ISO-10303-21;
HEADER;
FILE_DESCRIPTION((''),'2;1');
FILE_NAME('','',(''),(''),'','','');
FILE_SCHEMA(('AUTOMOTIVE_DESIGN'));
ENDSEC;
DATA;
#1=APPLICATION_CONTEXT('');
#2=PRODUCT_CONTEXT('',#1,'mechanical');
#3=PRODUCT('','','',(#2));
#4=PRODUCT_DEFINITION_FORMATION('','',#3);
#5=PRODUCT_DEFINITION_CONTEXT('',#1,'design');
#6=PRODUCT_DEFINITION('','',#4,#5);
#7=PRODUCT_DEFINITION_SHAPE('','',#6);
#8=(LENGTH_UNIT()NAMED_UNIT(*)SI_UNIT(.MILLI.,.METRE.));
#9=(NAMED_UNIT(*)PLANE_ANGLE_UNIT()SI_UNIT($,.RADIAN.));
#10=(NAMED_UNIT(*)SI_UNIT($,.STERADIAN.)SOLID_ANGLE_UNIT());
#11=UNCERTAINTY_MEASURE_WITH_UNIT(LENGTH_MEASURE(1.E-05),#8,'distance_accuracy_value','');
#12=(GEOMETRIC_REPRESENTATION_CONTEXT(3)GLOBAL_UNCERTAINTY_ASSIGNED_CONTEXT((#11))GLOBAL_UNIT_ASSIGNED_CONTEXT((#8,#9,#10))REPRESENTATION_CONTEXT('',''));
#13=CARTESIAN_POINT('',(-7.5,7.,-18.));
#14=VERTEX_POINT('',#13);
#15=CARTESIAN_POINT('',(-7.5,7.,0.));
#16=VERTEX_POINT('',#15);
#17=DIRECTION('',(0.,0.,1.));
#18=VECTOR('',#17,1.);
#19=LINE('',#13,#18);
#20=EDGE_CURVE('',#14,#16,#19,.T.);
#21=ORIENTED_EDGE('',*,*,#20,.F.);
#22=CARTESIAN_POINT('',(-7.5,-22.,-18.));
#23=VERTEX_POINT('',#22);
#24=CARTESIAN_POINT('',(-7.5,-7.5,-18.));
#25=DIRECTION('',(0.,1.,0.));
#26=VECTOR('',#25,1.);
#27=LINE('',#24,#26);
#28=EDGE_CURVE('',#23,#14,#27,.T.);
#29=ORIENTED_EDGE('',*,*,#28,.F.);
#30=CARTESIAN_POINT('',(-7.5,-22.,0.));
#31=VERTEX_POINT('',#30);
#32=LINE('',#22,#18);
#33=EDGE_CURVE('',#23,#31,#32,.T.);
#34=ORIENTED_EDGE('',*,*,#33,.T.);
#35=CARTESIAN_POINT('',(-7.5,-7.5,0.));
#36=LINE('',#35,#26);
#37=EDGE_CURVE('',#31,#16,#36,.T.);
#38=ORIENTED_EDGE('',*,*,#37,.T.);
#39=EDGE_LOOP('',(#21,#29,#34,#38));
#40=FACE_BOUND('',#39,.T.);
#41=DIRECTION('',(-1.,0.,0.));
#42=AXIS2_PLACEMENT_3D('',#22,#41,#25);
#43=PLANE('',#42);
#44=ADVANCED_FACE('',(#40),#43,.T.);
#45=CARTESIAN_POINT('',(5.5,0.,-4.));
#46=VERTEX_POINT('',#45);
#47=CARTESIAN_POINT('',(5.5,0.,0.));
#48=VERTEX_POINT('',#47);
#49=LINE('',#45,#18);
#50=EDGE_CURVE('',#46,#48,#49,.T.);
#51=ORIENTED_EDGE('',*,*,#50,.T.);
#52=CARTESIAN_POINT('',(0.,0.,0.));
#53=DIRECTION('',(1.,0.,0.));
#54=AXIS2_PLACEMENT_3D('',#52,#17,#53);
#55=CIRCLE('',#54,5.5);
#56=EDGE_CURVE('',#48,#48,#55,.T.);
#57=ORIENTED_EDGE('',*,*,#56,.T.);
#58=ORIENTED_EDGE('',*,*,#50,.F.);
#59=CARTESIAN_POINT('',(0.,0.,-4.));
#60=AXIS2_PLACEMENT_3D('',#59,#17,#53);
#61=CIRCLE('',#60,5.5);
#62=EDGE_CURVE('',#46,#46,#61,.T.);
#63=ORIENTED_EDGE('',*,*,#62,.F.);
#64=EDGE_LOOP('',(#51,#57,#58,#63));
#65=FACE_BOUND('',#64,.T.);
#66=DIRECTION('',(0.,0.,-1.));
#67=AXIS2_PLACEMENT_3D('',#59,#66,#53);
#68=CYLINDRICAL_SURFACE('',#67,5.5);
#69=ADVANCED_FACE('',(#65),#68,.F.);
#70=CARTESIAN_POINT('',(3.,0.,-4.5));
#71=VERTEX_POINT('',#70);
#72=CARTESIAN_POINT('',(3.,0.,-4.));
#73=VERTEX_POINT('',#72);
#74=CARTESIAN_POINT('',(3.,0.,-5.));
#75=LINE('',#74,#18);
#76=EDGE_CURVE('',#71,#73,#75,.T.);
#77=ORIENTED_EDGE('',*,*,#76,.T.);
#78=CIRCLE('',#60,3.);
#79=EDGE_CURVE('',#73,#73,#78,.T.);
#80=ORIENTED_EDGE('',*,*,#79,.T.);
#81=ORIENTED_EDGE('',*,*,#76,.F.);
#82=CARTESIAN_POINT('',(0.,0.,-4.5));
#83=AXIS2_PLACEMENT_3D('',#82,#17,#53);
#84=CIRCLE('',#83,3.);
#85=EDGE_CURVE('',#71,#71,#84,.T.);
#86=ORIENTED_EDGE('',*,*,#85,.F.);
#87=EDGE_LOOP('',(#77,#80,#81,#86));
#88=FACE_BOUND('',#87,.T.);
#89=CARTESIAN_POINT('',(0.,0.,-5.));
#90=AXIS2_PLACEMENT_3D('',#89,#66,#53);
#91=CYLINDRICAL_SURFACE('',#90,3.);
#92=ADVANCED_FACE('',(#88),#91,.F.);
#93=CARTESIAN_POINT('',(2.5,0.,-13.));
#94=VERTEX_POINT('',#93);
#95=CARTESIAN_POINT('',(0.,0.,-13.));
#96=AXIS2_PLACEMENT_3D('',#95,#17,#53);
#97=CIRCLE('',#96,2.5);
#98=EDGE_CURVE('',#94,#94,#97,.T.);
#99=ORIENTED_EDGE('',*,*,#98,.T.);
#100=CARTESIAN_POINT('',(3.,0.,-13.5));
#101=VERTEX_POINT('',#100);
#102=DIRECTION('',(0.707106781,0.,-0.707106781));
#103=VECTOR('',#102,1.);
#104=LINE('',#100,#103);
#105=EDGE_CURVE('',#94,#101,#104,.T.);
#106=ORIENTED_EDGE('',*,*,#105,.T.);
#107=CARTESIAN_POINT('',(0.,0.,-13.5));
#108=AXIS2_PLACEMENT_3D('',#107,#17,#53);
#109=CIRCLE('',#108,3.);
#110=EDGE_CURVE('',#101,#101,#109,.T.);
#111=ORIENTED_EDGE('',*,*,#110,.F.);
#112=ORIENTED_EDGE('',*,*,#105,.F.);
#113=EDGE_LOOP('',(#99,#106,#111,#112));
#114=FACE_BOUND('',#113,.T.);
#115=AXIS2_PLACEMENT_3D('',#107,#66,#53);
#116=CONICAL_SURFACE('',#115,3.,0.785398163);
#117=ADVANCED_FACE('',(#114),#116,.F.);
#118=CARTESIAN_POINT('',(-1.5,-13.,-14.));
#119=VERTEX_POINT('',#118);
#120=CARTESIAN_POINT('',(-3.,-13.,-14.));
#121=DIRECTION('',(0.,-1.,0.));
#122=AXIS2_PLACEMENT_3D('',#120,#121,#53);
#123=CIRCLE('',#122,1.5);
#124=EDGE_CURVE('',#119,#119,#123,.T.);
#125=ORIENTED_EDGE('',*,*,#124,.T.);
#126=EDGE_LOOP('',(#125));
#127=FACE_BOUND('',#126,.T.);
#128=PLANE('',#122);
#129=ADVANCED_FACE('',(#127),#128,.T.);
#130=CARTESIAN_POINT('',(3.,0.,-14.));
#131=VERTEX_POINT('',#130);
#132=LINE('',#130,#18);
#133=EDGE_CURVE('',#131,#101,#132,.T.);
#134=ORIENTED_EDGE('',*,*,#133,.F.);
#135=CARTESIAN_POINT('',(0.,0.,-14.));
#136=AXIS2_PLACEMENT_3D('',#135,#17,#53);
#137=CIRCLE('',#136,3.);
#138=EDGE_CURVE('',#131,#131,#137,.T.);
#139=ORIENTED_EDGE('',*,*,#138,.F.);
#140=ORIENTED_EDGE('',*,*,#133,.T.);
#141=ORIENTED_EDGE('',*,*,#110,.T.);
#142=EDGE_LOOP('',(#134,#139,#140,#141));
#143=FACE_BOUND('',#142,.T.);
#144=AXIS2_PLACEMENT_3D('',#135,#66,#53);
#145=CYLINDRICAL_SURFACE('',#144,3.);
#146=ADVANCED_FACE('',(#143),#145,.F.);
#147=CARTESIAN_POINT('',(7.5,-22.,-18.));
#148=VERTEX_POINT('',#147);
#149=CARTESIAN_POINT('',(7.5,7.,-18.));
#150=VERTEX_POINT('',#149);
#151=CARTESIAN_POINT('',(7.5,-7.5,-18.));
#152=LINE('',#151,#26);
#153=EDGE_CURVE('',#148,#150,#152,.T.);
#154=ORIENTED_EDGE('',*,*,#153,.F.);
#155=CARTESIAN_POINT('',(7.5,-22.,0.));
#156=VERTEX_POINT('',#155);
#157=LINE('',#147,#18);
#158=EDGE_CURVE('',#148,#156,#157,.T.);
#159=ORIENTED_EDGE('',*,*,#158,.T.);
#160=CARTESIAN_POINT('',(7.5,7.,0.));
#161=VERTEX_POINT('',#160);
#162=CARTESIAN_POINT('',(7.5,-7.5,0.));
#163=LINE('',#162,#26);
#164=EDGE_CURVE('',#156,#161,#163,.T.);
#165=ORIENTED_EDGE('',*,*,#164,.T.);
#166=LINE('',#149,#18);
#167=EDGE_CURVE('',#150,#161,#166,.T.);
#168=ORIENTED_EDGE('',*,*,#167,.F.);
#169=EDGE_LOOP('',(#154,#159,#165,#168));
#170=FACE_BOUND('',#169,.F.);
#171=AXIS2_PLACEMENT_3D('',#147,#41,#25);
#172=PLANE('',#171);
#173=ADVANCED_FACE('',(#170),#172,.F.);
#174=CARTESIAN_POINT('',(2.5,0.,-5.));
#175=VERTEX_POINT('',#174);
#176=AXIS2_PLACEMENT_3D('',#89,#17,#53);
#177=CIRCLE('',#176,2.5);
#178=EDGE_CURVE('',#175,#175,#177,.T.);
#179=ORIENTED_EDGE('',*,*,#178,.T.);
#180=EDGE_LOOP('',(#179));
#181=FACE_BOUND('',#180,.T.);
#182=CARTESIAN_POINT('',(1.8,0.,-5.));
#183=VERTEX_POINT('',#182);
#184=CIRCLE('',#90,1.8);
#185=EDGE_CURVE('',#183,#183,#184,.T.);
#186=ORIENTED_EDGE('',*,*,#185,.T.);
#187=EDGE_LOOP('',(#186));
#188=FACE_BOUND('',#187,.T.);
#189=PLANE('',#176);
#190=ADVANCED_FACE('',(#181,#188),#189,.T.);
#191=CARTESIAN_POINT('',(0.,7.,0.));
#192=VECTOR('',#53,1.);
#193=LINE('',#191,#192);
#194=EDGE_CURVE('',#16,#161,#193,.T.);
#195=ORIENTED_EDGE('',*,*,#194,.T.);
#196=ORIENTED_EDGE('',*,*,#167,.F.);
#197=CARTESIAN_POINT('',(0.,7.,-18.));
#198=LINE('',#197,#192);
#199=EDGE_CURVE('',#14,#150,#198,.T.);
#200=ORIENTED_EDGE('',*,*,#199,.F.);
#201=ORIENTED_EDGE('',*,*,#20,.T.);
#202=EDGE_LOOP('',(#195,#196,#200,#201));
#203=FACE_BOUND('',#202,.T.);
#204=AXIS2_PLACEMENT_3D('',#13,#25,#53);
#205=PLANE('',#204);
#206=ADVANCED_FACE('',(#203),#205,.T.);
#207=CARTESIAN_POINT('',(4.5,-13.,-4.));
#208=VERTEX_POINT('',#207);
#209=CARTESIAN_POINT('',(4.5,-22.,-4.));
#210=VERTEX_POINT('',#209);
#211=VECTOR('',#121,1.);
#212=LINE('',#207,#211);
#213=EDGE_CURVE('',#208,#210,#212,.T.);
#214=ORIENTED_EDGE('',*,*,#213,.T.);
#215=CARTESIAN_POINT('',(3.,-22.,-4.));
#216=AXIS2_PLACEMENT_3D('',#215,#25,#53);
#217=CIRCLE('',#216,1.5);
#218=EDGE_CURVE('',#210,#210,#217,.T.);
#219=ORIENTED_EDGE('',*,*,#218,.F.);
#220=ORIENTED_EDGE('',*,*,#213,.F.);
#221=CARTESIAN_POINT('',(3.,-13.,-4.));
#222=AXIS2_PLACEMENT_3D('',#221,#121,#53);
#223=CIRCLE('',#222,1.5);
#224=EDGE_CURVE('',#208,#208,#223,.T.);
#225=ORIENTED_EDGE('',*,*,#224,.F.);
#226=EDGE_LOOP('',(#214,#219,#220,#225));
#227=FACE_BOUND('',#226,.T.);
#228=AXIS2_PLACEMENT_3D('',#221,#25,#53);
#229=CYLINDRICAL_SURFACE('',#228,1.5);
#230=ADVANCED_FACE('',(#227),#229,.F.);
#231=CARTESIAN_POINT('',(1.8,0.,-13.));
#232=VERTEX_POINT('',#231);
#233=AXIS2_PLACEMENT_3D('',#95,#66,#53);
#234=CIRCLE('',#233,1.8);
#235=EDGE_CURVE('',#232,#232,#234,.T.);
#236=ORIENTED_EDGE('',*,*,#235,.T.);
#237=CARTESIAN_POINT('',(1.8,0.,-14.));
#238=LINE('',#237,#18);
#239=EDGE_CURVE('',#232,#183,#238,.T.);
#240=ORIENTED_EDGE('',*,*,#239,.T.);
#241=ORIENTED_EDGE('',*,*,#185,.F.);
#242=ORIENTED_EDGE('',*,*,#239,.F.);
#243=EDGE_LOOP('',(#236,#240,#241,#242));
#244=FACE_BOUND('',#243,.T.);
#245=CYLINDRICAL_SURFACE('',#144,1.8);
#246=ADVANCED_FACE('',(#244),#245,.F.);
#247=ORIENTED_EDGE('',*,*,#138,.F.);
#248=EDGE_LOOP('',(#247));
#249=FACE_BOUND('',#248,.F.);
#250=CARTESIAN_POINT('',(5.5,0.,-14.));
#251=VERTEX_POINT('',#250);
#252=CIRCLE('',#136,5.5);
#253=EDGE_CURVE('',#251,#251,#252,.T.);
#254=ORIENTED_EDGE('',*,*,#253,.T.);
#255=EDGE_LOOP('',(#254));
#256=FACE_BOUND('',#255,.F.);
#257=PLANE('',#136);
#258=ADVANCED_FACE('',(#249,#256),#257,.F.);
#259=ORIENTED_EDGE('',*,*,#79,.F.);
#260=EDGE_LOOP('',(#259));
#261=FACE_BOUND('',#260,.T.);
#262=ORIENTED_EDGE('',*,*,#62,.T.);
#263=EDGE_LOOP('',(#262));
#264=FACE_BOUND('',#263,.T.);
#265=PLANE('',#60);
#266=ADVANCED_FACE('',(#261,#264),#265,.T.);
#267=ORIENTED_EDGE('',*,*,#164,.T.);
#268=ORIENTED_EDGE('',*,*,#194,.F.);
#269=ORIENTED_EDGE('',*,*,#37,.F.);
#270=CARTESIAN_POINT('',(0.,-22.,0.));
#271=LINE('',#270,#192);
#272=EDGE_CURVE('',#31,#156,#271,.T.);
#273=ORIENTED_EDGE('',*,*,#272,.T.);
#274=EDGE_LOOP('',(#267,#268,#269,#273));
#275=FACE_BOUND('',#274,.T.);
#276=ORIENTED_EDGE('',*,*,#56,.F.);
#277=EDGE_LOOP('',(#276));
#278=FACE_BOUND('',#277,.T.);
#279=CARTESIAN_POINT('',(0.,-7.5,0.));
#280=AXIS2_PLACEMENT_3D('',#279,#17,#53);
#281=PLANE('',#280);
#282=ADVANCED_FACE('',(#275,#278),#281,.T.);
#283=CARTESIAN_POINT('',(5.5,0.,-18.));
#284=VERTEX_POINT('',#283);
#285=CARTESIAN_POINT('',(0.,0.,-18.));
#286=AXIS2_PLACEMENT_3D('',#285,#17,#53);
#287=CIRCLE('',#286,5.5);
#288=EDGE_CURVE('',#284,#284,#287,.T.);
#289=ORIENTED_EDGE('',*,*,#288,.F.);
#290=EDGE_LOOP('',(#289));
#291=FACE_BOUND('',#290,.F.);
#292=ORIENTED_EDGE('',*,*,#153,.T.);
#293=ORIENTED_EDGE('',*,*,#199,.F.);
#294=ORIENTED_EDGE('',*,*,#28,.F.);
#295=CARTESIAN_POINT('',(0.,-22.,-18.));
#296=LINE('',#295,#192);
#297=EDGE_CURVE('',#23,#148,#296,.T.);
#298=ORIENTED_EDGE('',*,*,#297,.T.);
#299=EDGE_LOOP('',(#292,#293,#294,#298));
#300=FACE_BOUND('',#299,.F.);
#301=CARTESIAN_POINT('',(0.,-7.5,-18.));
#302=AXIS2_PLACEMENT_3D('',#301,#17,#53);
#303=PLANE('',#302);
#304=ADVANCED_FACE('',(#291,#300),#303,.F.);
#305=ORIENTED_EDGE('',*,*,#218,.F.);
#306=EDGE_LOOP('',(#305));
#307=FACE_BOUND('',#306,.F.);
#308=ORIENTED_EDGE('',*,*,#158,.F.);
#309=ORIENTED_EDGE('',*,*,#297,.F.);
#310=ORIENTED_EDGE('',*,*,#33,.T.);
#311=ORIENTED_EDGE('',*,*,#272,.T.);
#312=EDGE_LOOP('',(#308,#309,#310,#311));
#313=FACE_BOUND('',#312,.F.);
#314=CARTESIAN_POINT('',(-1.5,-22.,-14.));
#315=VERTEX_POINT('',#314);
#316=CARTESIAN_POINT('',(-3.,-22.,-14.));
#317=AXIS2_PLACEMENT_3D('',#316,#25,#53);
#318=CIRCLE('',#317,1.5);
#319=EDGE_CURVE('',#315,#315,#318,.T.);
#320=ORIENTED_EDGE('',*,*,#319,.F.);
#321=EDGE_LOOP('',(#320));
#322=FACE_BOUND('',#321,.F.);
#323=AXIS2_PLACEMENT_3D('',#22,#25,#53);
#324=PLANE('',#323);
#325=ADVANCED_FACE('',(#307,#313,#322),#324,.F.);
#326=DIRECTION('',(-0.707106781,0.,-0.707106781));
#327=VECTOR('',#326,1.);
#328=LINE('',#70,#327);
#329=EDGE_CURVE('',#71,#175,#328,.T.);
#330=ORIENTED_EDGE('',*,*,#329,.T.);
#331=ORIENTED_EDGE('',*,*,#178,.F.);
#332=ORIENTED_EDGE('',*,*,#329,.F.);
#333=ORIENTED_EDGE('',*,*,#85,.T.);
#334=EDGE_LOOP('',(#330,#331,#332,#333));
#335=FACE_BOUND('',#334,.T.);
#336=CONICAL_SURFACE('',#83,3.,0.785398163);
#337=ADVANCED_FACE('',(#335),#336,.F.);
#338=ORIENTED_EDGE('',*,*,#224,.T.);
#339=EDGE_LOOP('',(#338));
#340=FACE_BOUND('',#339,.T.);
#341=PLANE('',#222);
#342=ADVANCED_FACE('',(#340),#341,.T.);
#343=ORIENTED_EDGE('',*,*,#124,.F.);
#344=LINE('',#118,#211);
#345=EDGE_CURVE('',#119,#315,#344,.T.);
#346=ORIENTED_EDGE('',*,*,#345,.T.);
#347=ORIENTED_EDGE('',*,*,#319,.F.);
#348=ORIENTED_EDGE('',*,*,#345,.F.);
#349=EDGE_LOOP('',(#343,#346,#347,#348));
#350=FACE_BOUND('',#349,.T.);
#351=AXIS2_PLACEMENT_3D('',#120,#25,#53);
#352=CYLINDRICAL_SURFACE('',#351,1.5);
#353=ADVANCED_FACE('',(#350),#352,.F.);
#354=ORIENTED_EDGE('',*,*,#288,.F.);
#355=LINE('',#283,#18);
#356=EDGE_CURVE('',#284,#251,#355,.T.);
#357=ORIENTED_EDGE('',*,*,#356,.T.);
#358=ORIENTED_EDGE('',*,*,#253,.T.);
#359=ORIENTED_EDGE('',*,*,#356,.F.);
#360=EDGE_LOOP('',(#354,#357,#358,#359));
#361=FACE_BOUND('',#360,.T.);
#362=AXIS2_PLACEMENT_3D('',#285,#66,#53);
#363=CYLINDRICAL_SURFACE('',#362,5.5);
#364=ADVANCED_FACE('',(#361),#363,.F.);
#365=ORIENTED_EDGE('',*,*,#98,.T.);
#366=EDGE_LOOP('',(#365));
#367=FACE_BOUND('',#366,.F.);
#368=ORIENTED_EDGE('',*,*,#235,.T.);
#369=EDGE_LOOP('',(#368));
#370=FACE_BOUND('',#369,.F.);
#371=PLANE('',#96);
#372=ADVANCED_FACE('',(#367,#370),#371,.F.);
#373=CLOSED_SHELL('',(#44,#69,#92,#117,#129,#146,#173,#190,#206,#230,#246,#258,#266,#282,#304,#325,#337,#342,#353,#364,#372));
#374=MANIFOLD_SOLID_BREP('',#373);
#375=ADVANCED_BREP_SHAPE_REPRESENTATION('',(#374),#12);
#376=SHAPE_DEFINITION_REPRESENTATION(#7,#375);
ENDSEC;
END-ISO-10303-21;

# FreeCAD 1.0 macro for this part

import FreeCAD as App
import Part
import Sketcher

V = App.Vector


def edges_at(feature, points):
    """Names of the edges that pass closest to the given points."""
    edges = feature.Shape.Edges
    near = lambda p: min(range(len(edges)), key=lambda i: edges[i].distToShape(Part.Vertex(*p))[0])
    return sorted({f"Edge{near(p) + 1}" for p in points})


def add_polygon(sketch, points):
    """Adds a closed chain of lines whose ends are joined by coincident constraints."""
    first, n = sketch.GeometryCount, len(points)
    for a, b in zip(points, points[1:] + points[:1]):
        sketch.addGeometry(Part.LineSegment(App.Vector(*a, 0), App.Vector(*b, 0)), False)
    for i in range(n):
        sketch.addConstraint(Sketcher.Constraint("Coincident", first + i, 2, first + (i + 1) % n, 1))

doc = App.newDocument("Part")
body = doc.addObject("PartDesign::Body", "Body")

sketch1 = doc.addObject("Sketcher::SketchObject", "Sketch")
body.addObject(sketch1)
sketch1.AttachmentSupport = (doc.XZ_Plane, [""])
sketch1.MapMode = "FlatFace"
sketch1.AttachmentOffset = App.Placement(V(0, 0, 13), App.Rotation())
sketch1.addGeometry(Part.Circle(V(3, -4, 0), V(0, 0, 1), 1.5), False)
sketch1.addConstraint(Sketcher.Constraint("Diameter", 0, 3.0))
sketch1.addConstraint(Sketcher.Constraint("DistanceX", -1, 1, 0, 3, 3.0))
sketch1.addConstraint(Sketcher.Constraint("DistanceY", 0, 3, -1, 1, 4.0))
pad1 = doc.addObject("PartDesign::Pad", "Pad")
body.addObject(pad1)
pad1.Profile = sketch1
pad1.Length = 21
body2 = doc.addObject("PartDesign::Body", "Body001")
body2.AllowCompound = True

sketch2 = doc.addObject("Sketcher::SketchObject", "Sketch001")
body2.addObject(sketch2)
sketch2.AttachmentSupport = (doc.getObject("XZ_Plane001"), [""])
sketch2.MapMode = "FlatFace"
sketch2.AttachmentOffset = App.Placement(V(0, 0, 13), App.Rotation())
sketch2.addGeometry(Part.Circle(V(-3, -14, 0), V(0, 0, 1), 1.5), False)
sketch2.addConstraint(Sketcher.Constraint("Diameter", 0, 3.0))
sketch2.addConstraint(Sketcher.Constraint("DistanceX", 0, 3, -1, 1, 3.0))
sketch2.addConstraint(Sketcher.Constraint("DistanceY", 0, 3, -1, 1, 14.0))
pad2 = doc.addObject("PartDesign::Pad", "Pad001")
body2.addObject(pad2)
pad2.Profile = sketch2
pad2.Length = 21
doc.recompute()

boolean = doc.addObject("PartDesign::Boolean", "Boolean")
body2.addObject(boolean)
boolean.Type = "Fuse"
boolean.addObjects([body])
body3 = doc.addObject("PartDesign::Body", "Body002")

sketch3 = doc.addObject("Sketcher::SketchObject", "Sketch002")
body3.addObject(sketch3)
sketch3.AttachmentSupport = (doc.getObject("XY_Plane002"), [""])
sketch3.MapMode = "FlatFace"
sketch3.AttachmentOffset = App.Placement(V(0, 0, -14), App.Rotation())
sketch3.addGeometry(Part.Circle(V(0, 0, 0), V(0, 0, 1), 1.8), False)
sketch3.addConstraint(Sketcher.Constraint("Coincident", 0, 3, -1, 1))
sketch3.addConstraint(Sketcher.Constraint("Diameter", 0, 3.6))
pad3 = doc.addObject("PartDesign::Pad", "Pad002")
body3.addObject(pad3)
pad3.Profile = sketch3
pad3.Length = 12
body4 = doc.addObject("PartDesign::Body", "Body003")

sketch4 = doc.addObject("Sketcher::SketchObject", "Sketch003")
body4.addObject(sketch4)
sketch4.AttachmentSupport = (doc.getObject("XY_Plane003"), [""])
sketch4.MapMode = "FlatFace"
sketch4.AttachmentOffset = App.Placement(V(0, 0, -5), App.Rotation())
sketch4.addGeometry(Part.Circle(V(0, 0, 0), V(0, 0, 1), 3), False)
sketch4.addConstraint(Sketcher.Constraint("Coincident", 0, 3, -1, 1))
sketch4.addConstraint(Sketcher.Constraint("Diameter", 0, 6.0))
pad4 = doc.addObject("PartDesign::Pad", "Pad003")
body4.addObject(pad4)
pad4.Profile = sketch4
pad4.Length = 1
body5 = doc.addObject("PartDesign::Body", "Body004")
body5.AllowCompound = True

sketch5 = doc.addObject("Sketcher::SketchObject", "Sketch004")
body5.addObject(sketch5)
sketch5.AttachmentSupport = (doc.getObject("XY_Plane004"), [""])
sketch5.MapMode = "FlatFace"
sketch5.AttachmentOffset = App.Placement(V(0, 0, -14), App.Rotation())
sketch5.addGeometry(Part.Circle(V(0, 0, 0), V(0, 0, 1), 3), False)
sketch5.addConstraint(Sketcher.Constraint("Coincident", 0, 3, -1, 1))
sketch5.addConstraint(Sketcher.Constraint("Diameter", 0, 6.0))
pad5 = doc.addObject("PartDesign::Pad", "Pad004")
body5.addObject(pad5)
pad5.Profile = sketch5
pad5.Length = 1
doc.recompute()

boolean2 = doc.addObject("PartDesign::Boolean", "Boolean001")
body5.addObject(boolean2)
boolean2.Type = "Fuse"
boolean2.addObjects([body4])
body6 = doc.addObject("PartDesign::Body", "Body005")

sketch6 = doc.addObject("Sketcher::SketchObject", "Sketch005")
body6.addObject(sketch6)
sketch6.AttachmentSupport = (doc.getObject("XY_Plane005"), [""])
sketch6.MapMode = "FlatFace"
sketch6.AttachmentOffset = App.Placement(V(0, 0, -18), App.Rotation())
sketch6.addGeometry(Part.Circle(V(0, 0, 0), V(0, 0, 1), 5.5), False)
sketch6.addConstraint(Sketcher.Constraint("Coincident", 0, 3, -1, 1))
sketch6.addConstraint(Sketcher.Constraint("Diameter", 0, 11.0))
pad6 = doc.addObject("PartDesign::Pad", "Pad005")
body6.addObject(pad6)
pad6.Profile = sketch6
pad6.Length = 4
body7 = doc.addObject("PartDesign::Body", "Body006")
body7.AllowCompound = True

sketch7 = doc.addObject("Sketcher::SketchObject", "Sketch006")
body7.addObject(sketch7)
sketch7.AttachmentSupport = (doc.getObject("XY_Plane006"), [""])
sketch7.MapMode = "FlatFace"
sketch7.AttachmentOffset = App.Placement(V(0, 0, -4), App.Rotation())
sketch7.addGeometry(Part.Circle(V(0, 0, 0), V(0, 0, 1), 5.5), False)
sketch7.addConstraint(Sketcher.Constraint("Coincident", 0, 3, -1, 1))
sketch7.addConstraint(Sketcher.Constraint("Diameter", 0, 11.0))
pad7 = doc.addObject("PartDesign::Pad", "Pad006")
body7.addObject(pad7)
pad7.Profile = sketch7
pad7.Length = 4
doc.recompute()

boolean3 = doc.addObject("PartDesign::Boolean", "Boolean002")
body7.addObject(boolean3)
boolean3.Type = "Fuse"
boolean3.addObjects([body6])
body8 = doc.addObject("PartDesign::Body", "Body007")

sketch8 = doc.addObject("Sketcher::SketchObject", "Sketch007")
body8.addObject(sketch8)
sketch8.AttachmentSupport = (doc.getObject("XY_Plane007"), [""])
sketch8.MapMode = "FlatFace"
sketch8.AttachmentOffset = App.Placement(V(0, 0, -18), App.Rotation())
add_polygon(sketch8, [(-7.5, 7), (-7.5, -22), (7.5, -22), (7.5, 7)])
sketch8.addConstraint(Sketcher.Constraint("Vertical", 0))
sketch8.addConstraint(Sketcher.Constraint("Horizontal", 1))
sketch8.addConstraint(Sketcher.Constraint("Vertical", 2))
sketch8.addConstraint(Sketcher.Constraint("Horizontal", 3))
sketch8.addConstraint(Sketcher.Constraint("DistanceX", 1, 1, 1, 2, 15.0))
sketch8.addConstraint(Sketcher.Constraint("DistanceY", 0, 2, 0, 1, 29.0))
sketch8.addConstraint(Sketcher.Constraint("DistanceY", 0, 2, -1, 1, 22.0))
sketch8.addConstraint(Sketcher.Constraint("DistanceX", 0, 2, -1, 1, 7.5))
pad8 = doc.addObject("PartDesign::Pad", "Pad007")
body8.addObject(pad8)
pad8.Profile = sketch8
pad8.Length = 18
doc.recompute()

boolean4 = doc.addObject("PartDesign::Boolean", "Boolean003")
body8.addObject(boolean4)
boolean4.Type = "Cut"
boolean4.addObjects([body7])
doc.recompute()

boolean5 = doc.addObject("PartDesign::Boolean", "Boolean004")
body8.addObject(boolean5)
boolean5.Type = "Cut"
boolean5.addObjects([body5])
doc.recompute()

boolean6 = doc.addObject("PartDesign::Boolean", "Boolean005")
body8.addObject(boolean6)
boolean6.Type = "Cut"
boolean6.addObjects([body3])
doc.recompute()

chamfer = doc.addObject("PartDesign::Chamfer", "Chamfer")
body8.addObject(chamfer)
chamfer.Base = (boolean6, edges_at(boolean6, [(-3, 0, -5)]))
chamfer.Size = 0.5
doc.recompute()

chamfer2 = doc.addObject("PartDesign::Chamfer", "Chamfer001")
body8.addObject(chamfer2)
chamfer2.Base = (chamfer, edges_at(chamfer, [(-3, 0, -13)]))
chamfer2.Size = 0.5
doc.recompute()

boolean7 = doc.addObject("PartDesign::Boolean", "Boolean006")
body8.addObject(boolean7)
boolean7.Type = "Cut"
boolean7.addObjects([body2])

doc.recompute()
